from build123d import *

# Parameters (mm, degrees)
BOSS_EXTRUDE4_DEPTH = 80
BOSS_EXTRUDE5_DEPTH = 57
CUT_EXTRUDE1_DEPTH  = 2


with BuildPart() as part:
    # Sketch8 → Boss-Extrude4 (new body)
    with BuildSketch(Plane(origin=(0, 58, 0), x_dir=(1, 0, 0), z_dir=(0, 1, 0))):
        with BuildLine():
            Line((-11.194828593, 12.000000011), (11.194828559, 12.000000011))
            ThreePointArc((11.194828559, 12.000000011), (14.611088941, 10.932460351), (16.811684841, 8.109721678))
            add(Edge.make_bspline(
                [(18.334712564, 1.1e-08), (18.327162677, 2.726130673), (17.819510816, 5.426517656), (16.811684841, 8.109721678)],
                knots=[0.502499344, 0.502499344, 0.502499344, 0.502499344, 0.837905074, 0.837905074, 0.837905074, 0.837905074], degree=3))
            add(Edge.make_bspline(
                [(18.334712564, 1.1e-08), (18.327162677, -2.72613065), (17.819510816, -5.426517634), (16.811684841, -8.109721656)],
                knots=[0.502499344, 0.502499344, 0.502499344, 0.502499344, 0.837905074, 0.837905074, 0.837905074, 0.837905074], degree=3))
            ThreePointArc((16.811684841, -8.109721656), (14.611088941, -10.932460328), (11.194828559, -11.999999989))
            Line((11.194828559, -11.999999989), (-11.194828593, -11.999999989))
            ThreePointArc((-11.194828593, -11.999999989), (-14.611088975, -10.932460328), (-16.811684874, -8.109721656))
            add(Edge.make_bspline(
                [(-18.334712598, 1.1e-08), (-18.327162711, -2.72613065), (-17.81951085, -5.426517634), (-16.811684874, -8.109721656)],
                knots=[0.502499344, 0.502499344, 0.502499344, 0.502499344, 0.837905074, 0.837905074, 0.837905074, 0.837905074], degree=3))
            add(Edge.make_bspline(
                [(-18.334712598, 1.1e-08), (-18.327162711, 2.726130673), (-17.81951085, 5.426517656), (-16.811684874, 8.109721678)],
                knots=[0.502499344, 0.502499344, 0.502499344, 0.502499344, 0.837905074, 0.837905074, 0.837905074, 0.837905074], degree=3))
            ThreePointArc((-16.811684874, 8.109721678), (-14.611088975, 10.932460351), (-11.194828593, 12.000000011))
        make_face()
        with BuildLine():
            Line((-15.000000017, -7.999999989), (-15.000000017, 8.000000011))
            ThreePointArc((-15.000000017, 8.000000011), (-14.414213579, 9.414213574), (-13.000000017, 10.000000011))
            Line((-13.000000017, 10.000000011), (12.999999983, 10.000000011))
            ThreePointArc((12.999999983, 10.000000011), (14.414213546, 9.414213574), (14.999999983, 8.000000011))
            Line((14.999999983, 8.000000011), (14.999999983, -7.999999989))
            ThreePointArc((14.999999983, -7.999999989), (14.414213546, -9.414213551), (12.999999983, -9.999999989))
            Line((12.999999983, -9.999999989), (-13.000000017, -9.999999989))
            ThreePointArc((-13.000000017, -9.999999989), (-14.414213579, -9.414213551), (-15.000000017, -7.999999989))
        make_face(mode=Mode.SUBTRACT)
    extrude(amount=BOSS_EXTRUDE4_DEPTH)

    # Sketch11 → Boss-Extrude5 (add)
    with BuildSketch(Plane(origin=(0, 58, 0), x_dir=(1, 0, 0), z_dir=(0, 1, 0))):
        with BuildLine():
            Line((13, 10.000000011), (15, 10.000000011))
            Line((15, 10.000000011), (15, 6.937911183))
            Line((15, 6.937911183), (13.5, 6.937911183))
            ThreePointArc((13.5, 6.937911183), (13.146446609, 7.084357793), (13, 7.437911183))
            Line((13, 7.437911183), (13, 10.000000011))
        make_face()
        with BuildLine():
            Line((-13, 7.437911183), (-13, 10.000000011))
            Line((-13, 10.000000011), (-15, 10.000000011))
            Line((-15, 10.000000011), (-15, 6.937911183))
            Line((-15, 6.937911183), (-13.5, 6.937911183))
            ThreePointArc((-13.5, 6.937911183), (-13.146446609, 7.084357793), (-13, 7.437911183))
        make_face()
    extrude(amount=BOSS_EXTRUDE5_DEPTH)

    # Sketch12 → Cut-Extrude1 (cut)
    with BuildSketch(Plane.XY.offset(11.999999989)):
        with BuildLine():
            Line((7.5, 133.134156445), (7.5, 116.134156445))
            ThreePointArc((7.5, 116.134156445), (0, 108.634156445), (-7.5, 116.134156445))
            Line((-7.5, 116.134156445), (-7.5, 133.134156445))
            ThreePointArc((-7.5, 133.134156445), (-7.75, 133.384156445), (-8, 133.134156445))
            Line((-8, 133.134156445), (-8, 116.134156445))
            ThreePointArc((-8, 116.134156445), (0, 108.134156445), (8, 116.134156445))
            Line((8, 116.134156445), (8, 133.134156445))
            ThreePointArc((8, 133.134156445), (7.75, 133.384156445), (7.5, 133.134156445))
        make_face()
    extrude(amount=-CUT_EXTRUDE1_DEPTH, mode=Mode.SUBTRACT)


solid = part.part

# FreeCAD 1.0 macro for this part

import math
import FreeCAD as App
import Part
import Sketcher

V = App.Vector

doc = App.newDocument("Part")
params = doc.addObject("Spreadsheet::Sheet", "Params")
for row, (alias, value) in enumerate([
    ("sketch1_radius", "6 mm"),
    ("sketch1_radius2", "6 mm"),
    ("sketch1_radius3", "6 mm"),
    ("sketch1_radius4", "6 mm"),
    ("sketch1_radius5", "2 mm"),
    ("pad1_length", "80 mm"),
    ("sketch2_radius", "0.5 mm"),
    ("sketch2_width", "2 mm"),
    ("pad2_length", "57 mm"),
    ("sketch3_radius", "8 mm"),
    ("sketch3_radius2", "7.5 mm"),
    ("sketch3_height", "17 mm"),
    ("pocket1_length", "2 mm"),
], start=1):
    params.set(f"A{row}", alias)
    params.set(f"B{row}", "=" + value)
    params.setAlias(f"B{row}", alias)

body = doc.addObject("PartDesign::Body", "Body")

# Sketch on XZ plane
sketch1 = body.newObject("Sketcher::SketchObject", "Sketch")
sketch1.AttachmentSupport = (doc.getObject("XZ_Plane"), [""])
sketch1.MapMode = "FlatFace"
sketch1.AttachmentOffset = App.Placement(V(0, 0, -58), App.Rotation())
sketch1.addGeometry(Part.LineSegment(V(11.194829, -12, 0), V(-11.194829, -12, 0)), False)
sketch1.addGeometry(Part.ArcOfCircle(Part.Circle(V(-11.194829, -6, 0), V(0, 0, 1), 6), math.radians(-159.413549), math.radians(-90)), False)
sketch1.addGeometry(Part.BSplineCurve([V(-18.334713, 0, 0), V(-18.327163, -2.726131, 0), V(-17.819511, -5.426518, 0), V(-16.811685, -8.109722, 0)], [4, 4], [0.502499344, 0.837905074], False, 3, [1, 1, 1, 1], False), False)
sketch1.addGeometry(Part.BSplineCurve([V(-18.334713, 0, 0), V(-18.327163, 2.726131, 0), V(-17.819511, 5.426518, 0), V(-16.811685, 8.109722, 0)], [4, 4], [0.502499344, 0.837905074], False, 3, [1, 1, 1, 1], False), False)
sketch1.addGeometry(Part.ArcOfCircle(Part.Circle(V(-11.194829, 6, 0), V(0, 0, 1), 6), math.radians(90), math.radians(159.413549)), False)
sketch1.addGeometry(Part.LineSegment(V(-11.194829, 12, 0), V(11.194829, 12, 0)), False)
sketch1.addGeometry(Part.ArcOfCircle(Part.Circle(V(11.194829, 6, 0), V(0, 0, 1), 6), math.radians(20.586451), math.radians(90)), False)
sketch1.addGeometry(Part.BSplineCurve([V(18.334713, 0, 0), V(18.327163, 2.726131, 0), V(17.819511, 5.426518, 0), V(16.811685, 8.109722, 0)], [4, 4], [0.502499344, 0.837905074], False, 3, [1, 1, 1, 1], False), False)
sketch1.addGeometry(Part.BSplineCurve([V(18.334713, 0, 0), V(18.327163, -2.726131, 0), V(17.819511, -5.426518, 0), V(16.811685, -8.109722, 0)], [4, 4], [0.502499344, 0.837905074], False, 3, [1, 1, 1, 1], False), False)
sketch1.addGeometry(Part.ArcOfCircle(Part.Circle(V(11.194829, -6, 0), V(0, 0, 1), 6), math.radians(-90), math.radians(-20.586451)), False)
sketch1.addGeometry(Part.LineSegment(V(-15, 8, 0), V(-15, -8, 0)), False)
sketch1.addGeometry(Part.ArcOfCircle(Part.Circle(V(-13, -8, 0), V(0, 0, 1), 2), math.radians(180), math.radians(270)), False)
sketch1.addGeometry(Part.LineSegment(V(-13, -10, 0), V(13, -10, 0)), False)
sketch1.addGeometry(Part.ArcOfCircle(Part.Circle(V(13, -8, 0), V(0, 0, 1), 2), math.radians(-90), math.radians(0)), False)
sketch1.addGeometry(Part.LineSegment(V(15, -8, 0), V(15, 8, 0)), False)
sketch1.addGeometry(Part.ArcOfCircle(Part.Circle(V(13, 8, 0), V(0, 0, 1), 2), math.radians(0), math.radians(90)), False)
sketch1.addGeometry(Part.LineSegment(V(13, 10, 0), V(-13, 10, 0)), False)
sketch1.addGeometry(Part.ArcOfCircle(Part.Circle(V(-13, 8, 0), V(0, 0, 1), 2), math.radians(90), math.radians(180)), False)
sketch1.addConstraint(Sketcher.Constraint("Block", 2))
sketch1.addConstraint(Sketcher.Constraint("Block", 3))
sketch1.addConstraint(Sketcher.Constraint("Block", 7))
sketch1.addConstraint(Sketcher.Constraint("Block", 8))
sketch1.addConstraint(Sketcher.Constraint("Coincident", 0, 2, 1, 2))
sketch1.addConstraint(Sketcher.Constraint("Coincident", 1, 1, 2, 2))
sketch1.addConstraint(Sketcher.Constraint("Coincident", 3, 2, 4, 2))
sketch1.addConstraint(Sketcher.Constraint("Coincident", 4, 1, 5, 1))
sketch1.addConstraint(Sketcher.Constraint("Coincident", 5, 2, 6, 2))
sketch1.addConstraint(Sketcher.Constraint("Coincident", 6, 1, 7, 2))
sketch1.addConstraint(Sketcher.Constraint("Coincident", 8, 2, 9, 2))
sketch1.addConstraint(Sketcher.Constraint("Coincident", 9, 1, 0, 1))
sketch1.addConstraint(Sketcher.Constraint("Coincident", 10, 2, 11, 1))
sketch1.addConstraint(Sketcher.Constraint("Coincident", 11, 2, 12, 1))
sketch1.addConstraint(Sketcher.Constraint("Coincident", 12, 2, 13, 1))
sketch1.addConstraint(Sketcher.Constraint("Coincident", 13, 2, 14, 1))
sketch1.addConstraint(Sketcher.Constraint("Coincident", 14, 2, 15, 1))
sketch1.addConstraint(Sketcher.Constraint("Coincident", 15, 2, 16, 1))
sketch1.addConstraint(Sketcher.Constraint("Coincident", 16, 2, 17, 1))
sketch1.addConstraint(Sketcher.Constraint("Coincident", 17, 2, 10, 1))
sketch1.addConstraint(Sketcher.Constraint("Horizontal", 0))
sketch1.addConstraint(Sketcher.Constraint("Horizontal", 5))
sketch1.addConstraint(Sketcher.Constraint("Vertical", 10))
sketch1.addConstraint(Sketcher.Constraint("Horizontal", 12))
sketch1.addConstraint(Sketcher.Constraint("Vertical", 14))
sketch1.addConstraint(Sketcher.Constraint("Horizontal", 16))
sketch1.addConstraint(Sketcher.Constraint("Radius", 1, 6.0))
sketch1.addConstraint(Sketcher.Constraint("Radius", 4, 6.0))
sketch1.addConstraint(Sketcher.Constraint("Radius", 6, 6.0))
sketch1.addConstraint(Sketcher.Constraint("Radius", 9, 6.0))
sketch1.addConstraint(Sketcher.Constraint("Radius", 11, 2.0))
sketch1.addConstraint(Sketcher.Constraint("Radius", 13, 2.0))
sketch1.addConstraint(Sketcher.Constraint("Radius", 15, 2.0))
sketch1.addConstraint(Sketcher.Constraint("Radius", 17, 2.0))
sketch1.addConstraint(Sketcher.Constraint("DistanceX", 12, 1, 12, 2, 26.0))
sketch1.addConstraint(Sketcher.Constraint("DistanceX", 16, 2, 16, 1, 26.0))
sketch1.addConstraint(Sketcher.Constraint("DistanceY", 10, 2, 10, 1, 16.0))
sketch1.addConstraint(Sketcher.Constraint("DistanceY", 14, 1, 14, 2, 16.0))
sketch1.addConstraint(Sketcher.Constraint("DistanceY", 1, 3, -1, 1, 6.0))
sketch1.addConstraint(Sketcher.Constraint("DistanceY", -1, 1, 4, 3, 6.0))
sketch1.addConstraint(Sketcher.Constraint("DistanceX", 11, 3, -1, 1, 13.0))
sketch1.addConstraint(Sketcher.Constraint("DistanceY", 11, 3, -1, 1, 8.0))
sketch1.addConstraint(Sketcher.Constraint("DistanceX", -1, 1, 13, 3, 13.0))
sketch1.addConstraint(Sketcher.Constraint("DistanceY", -1, 1, 15, 3, 8.0))
sketch1.addConstraint(Sketcher.Constraint("DistanceY", 10, 2, -1, 1, 8.0))
sketch1.addConstraint(Sketcher.Constraint("DistanceX", 11, 2, -1, 1, 13.0))
sketch1.addConstraint(Sketcher.Constraint("DistanceY", 13, 2, -1, 1, 8.0))
sketch1.addConstraint(Sketcher.Constraint("DistanceX", -1, 1, 15, 2, 13.0))
sketch1.addConstraint(Sketcher.Constraint("DistanceX", 0, 2, 0, 1, 22.389657))
sketch1.addConstraint(Sketcher.Constraint("DistanceX", 5, 1, 5, 2, 22.389657))
sketch1.addConstraint(Sketcher.Constraint("DistanceX", 0, 2, -1, 1, 11.194829))
sketch1.addConstraint(Sketcher.Constraint("DistanceX", 4, 1, -1, 1, 11.194829))
sketch1.setExpression("Constraints[26]", "Params.sketch1_radius")
sketch1.setExpression("Constraints[27]", "Params.sketch1_radius2")
sketch1.setExpression("Constraints[28]", "Params.sketch1_radius3")
sketch1.setExpression("Constraints[29]", "Params.sketch1_radius4")
sketch1.setExpression("Constraints[30]", "Params.sketch1_radius5")
pad1 = body.newObject("PartDesign::Pad", "Pad")
pad1.Profile = sketch1
pad1.setExpression("Length", "Params.pad1_length")
pad1.Reversed = True

# Sketch on XZ plane
sketch2 = body.newObject("Sketcher::SketchObject", "Sketch001")
sketch2.AttachmentSupport = (doc.getObject("XZ_Plane"), [""])
sketch2.MapMode = "FlatFace"
sketch2.AttachmentOffset = App.Placement(V(0, 0, -58), App.Rotation())
sketch2.addGeometry(Part.LineSegment(V(15, -10, 0), V(13, -10, 0)), False)
sketch2.addGeometry(Part.LineSegment(V(13, -10, 0), V(13, -7.437911, 0)), False)
sketch2.addGeometry(Part.ArcOfCircle(Part.Circle(V(13.5, -7.437911, 0), V(0, 0, 1), 0.5), math.radians(90), math.radians(180)), False)
sketch2.addGeometry(Part.LineSegment(V(13.5, -6.937911, 0), V(15, -6.937911, 0)), False)
sketch2.addGeometry(Part.LineSegment(V(15, -6.937911, 0), V(15, -10, 0)), False)
sketch2.addGeometry(Part.LineSegment(V(-13, -7.437911, 0), V(-13, -10, 0)), False)
sketch2.addGeometry(Part.LineSegment(V(-13, -10, 0), V(-15, -10, 0)), False)
sketch2.addGeometry(Part.LineSegment(V(-15, -10, 0), V(-15, -6.937911, 0)), False)
sketch2.addGeometry(Part.LineSegment(V(-15, -6.937911, 0), V(-13.5, -6.937911, 0)), False)
sketch2.addGeometry(Part.ArcOfCircle(Part.Circle(V(-13.5, -7.437911, 0), V(0, 0, 1), 0.5), math.radians(0), math.radians(90)), False)
sketch2.addConstraint(Sketcher.Constraint("Coincident", 0, 2, 1, 1))
sketch2.addConstraint(Sketcher.Constraint("Tangent", 1, 2, 2, 2))
sketch2.addConstraint(Sketcher.Constraint("Tangent", 2, 1, 3, 1))
sketch2.addConstraint(Sketcher.Constraint("Coincident", 3, 2, 4, 1))
sketch2.addConstraint(Sketcher.Constraint("Coincident", 4, 2, 0, 1))
sketch2.addConstraint(Sketcher.Constraint("Coincident", 5, 2, 6, 1))
sketch2.addConstraint(Sketcher.Constraint("Coincident", 6, 2, 7, 1))
sketch2.addConstraint(Sketcher.Constraint("Coincident", 7, 2, 8, 1))
sketch2.addConstraint(Sketcher.Constraint("Tangent", 8, 2, 9, 2))
sketch2.addConstraint(Sketcher.Constraint("Tangent", 9, 1, 5, 1))
sketch2.addConstraint(Sketcher.Constraint("Horizontal", 0))
sketch2.addConstraint(Sketcher.Constraint("Vertical", 1))
sketch2.addConstraint(Sketcher.Constraint("Horizontal", 3))
sketch2.addConstraint(Sketcher.Constraint("Vertical", 4))
sketch2.addConstraint(Sketcher.Constraint("Vertical", 5))
sketch2.addConstraint(Sketcher.Constraint("Horizontal", 6))
sketch2.addConstraint(Sketcher.Constraint("Vertical", 7))
sketch2.addConstraint(Sketcher.Constraint("Horizontal", 8))
sketch2.addConstraint(Sketcher.Constraint("Equal", 2, 9))
sketch2.addConstraint(Sketcher.Constraint("Symmetric", 2, 3, 9, 3, -2))
sketch2.addConstraint(Sketcher.Constraint("Symmetric", 4, 2, 6, 2, -2))
sketch2.addConstraint(Sketcher.Constraint("Radius", 2, 0.5))
sketch2.addConstraint(Sketcher.Constraint("DistanceX", 0, 2, 0, 1, 2.0))
sketch2.addConstraint(Sketcher.Constraint("DistanceX", -1, 1, 0, 2, 13.0))
sketch2.addConstraint(Sketcher.Constraint("DistanceY", 0, 2, -1, 1, 10.0))
sketch2.addConstraint(Sketcher.Constraint("DistanceY", 1, 1, 1, 2, 2.562089))
sketch2.setExpression("Constraints[21]", "Params.sketch2_radius")
sketch2.setExpression("Constraints[22]", "Params.sketch2_width")
pad2 = body.newObject("PartDesign::Pad", "Pad001")
pad2.Profile = sketch2
pad2.setExpression("Length", "Params.pad2_length")
pad2.Reversed = True

# Sketch on XY plane
sketch3 = body.newObject("Sketcher::SketchObject", "Sketch002")
sketch3.AttachmentSupport = (doc.getObject("XY_Plane"), [""])
sketch3.MapMode = "FlatFace"
sketch3.AttachmentOffset = App.Placement(V(0, 0, 12), App.Rotation())
sketch3.addGeometry(Part.LineSegment(V(7.5, 133.134156, 0), V(7.5, 116.134156, 0)), False)
sketch3.addGeometry(Part.ArcOfCircle(Part.Circle(V(0, 116.134156, 0), V(0, 0, 1), 7.5), math.radians(180), math.radians(360)), False)
sketch3.addGeometry(Part.LineSegment(V(-7.5, 116.134156, 0), V(-7.5, 133.134156, 0)), False)
sketch3.addGeometry(Part.ArcOfCircle(Part.Circle(V(-7.75, 133.134156, 0), V(0, 0, 1), 0.25), math.radians(0), math.radians(180)), False)
sketch3.addGeometry(Part.LineSegment(V(-8, 133.134156, 0), V(-8, 116.134156, 0)), False)
sketch3.addGeometry(Part.ArcOfCircle(Part.Circle(V(0, 116.134156, 0), V(0, 0, 1), 8), math.radians(180), math.radians(360)), False)
sketch3.addGeometry(Part.LineSegment(V(8, 116.134156, 0), V(8, 133.134156, 0)), False)
sketch3.addGeometry(Part.ArcOfCircle(Part.Circle(V(7.75, 133.134156, 0), V(0, 0, 1), 0.25), math.radians(0), math.radians(180)), False)
sketch3.addConstraint(Sketcher.Constraint("Tangent", 0, 2, 1, 2))
sketch3.addConstraint(Sketcher.Constraint("Tangent", 1, 1, 2, 1))
sketch3.addConstraint(Sketcher.Constraint("Tangent", 2, 2, 3, 1))
sketch3.addConstraint(Sketcher.Constraint("Tangent", 3, 2, 4, 1))
sketch3.addConstraint(Sketcher.Constraint("Tangent", 4, 2, 5, 1))
sketch3.addConstraint(Sketcher.Constraint("Tangent", 5, 2, 6, 1))
sketch3.addConstraint(Sketcher.Constraint("Tangent", 6, 2, 7, 1))
sketch3.addConstraint(Sketcher.Constraint("Tangent", 7, 2, 0, 1))
sketch3.addConstraint(Sketcher.Constraint("Vertical", 0))
sketch3.addConstraint(Sketcher.Constraint("Vertical", 2))
sketch3.addConstraint(Sketcher.Constraint("Vertical", 4))
sketch3.addConstraint(Sketcher.Constraint("Vertical", 6))
sketch3.addConstraint(Sketcher.Constraint("Coincident", 5, 3, 1, 3))
sketch3.addConstraint(Sketcher.Constraint("Symmetric", 3, 3, 7, 3, -2))
sketch3.addConstraint(Sketcher.Constraint("Radius", 5, 8.0))
sketch3.addConstraint(Sketcher.Constraint("Radius", 1, 7.5))
sketch3.addConstraint(Sketcher.Constraint("DistanceY", 0, 2, 0, 1, 17.0))
sketch3.addConstraint(Sketcher.Constraint("DistanceY", -1, 1, 1, 3, 116.134156))
sketch3.setExpression("Constraints[14]", "Params.sketch3_radius")
sketch3.setExpression("Constraints[15]", "Params.sketch3_radius2")
sketch3.setExpression("Constraints[16]", "Params.sketch3_height")
pocket1 = body.newObject("PartDesign::Pocket", "Pocket")
pocket1.Profile = sketch3
pocket1.setExpression("Length", "Params.pocket1_length")

doc.recompute()
